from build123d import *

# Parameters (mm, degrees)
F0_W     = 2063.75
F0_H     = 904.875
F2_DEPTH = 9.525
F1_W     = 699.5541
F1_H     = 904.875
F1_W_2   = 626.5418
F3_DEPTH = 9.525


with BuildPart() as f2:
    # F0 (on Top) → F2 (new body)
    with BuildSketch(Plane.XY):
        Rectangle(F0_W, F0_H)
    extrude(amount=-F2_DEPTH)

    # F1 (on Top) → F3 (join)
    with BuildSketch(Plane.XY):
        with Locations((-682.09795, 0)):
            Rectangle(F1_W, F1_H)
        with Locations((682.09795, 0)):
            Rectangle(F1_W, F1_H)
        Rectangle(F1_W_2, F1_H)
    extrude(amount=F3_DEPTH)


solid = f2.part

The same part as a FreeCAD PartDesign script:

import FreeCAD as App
import Part
import Sketcher
Q = App.Units.Quantity

doc = App.newDocument("Part")
body = doc.addObject("PartDesign::Body", "Body")

# Sketch on XY plane
sketch1 = body.newObject("Sketcher::SketchObject", "Sketch")
sketch1.AttachmentSupport = (doc.getObject("XY_Plane"), [""])
sketch1.MapMode = "FlatFace"
sketch1.addGeometry([
    Part.LineSegment(App.Vector(-1032, 452, 0), App.Vector(-1032, -452, 0)),
    Part.LineSegment(App.Vector(-1032, -452, 0), App.Vector(1032, -452, 0)),
    Part.LineSegment(App.Vector(1032, -452, 0), App.Vector(1032, 452, 0)),
    Part.LineSegment(App.Vector(1032, 452, 0), App.Vector(-1032, 452, 0)),
], False)
sketch1.addConstraint([
    Sketcher.Constraint("Coincident", 0, 2, 1, 1),
    Sketcher.Constraint("Coincident", 1, 2, 2, 1),
    Sketcher.Constraint("Coincident", 2, 2, 3, 1),
    Sketcher.Constraint("Coincident", 3, 2, 0, 1),
    Sketcher.Constraint("Vertical", 0),
    Sketcher.Constraint("Horizontal", 1),
    Sketcher.Constraint("Vertical", 2),
    Sketcher.Constraint("Horizontal", 3),
    Sketcher.Constraint("Symmetric", 0, 2, 2, 2, -1, 1),
    Sketcher.Constraint("DistanceX", 1, 1, 1, 2, Q("81.25 in")),
    Sketcher.Constraint("DistanceY", 0, 2, 0, 1, Q("35.625 in")),
])
pad1 = body.newObject("PartDesign::Pad", "Pad")
pad1.Profile = sketch1
pad1.Length = Q("0.375 in")
pad1.Reversed = True

# Sketch on XY plane
sketch2 = body.newObject("Sketcher::SketchObject", "Sketch001")
sketch2.AttachmentSupport = (doc.getObject("XY_Plane"), [""])
sketch2.MapMode = "FlatFace"
sketch2.addGeometry([
    Part.LineSegment(App.Vector(-1032, 452, 0), App.Vector(-1032, -452, 0)),  # 0
    Part.LineSegment(App.Vector(-1032, -452, 0), App.Vector(-332, -452, 0)),  # 1
    Part.LineSegment(App.Vector(-332, -452, 0), App.Vector(-332, 452, 0)),  # 2
    Part.LineSegment(App.Vector(-332, 452, 0), App.Vector(-1032, 452, 0)),  # 3
    Part.LineSegment(App.Vector(332, 452, 0), App.Vector(332, -452, 0)),  # 4
    Part.LineSegment(App.Vector(332, -452, 0), App.Vector(1032, -452, 0)),  # 5
    Part.LineSegment(App.Vector(1032, -452, 0), App.Vector(1032, 452, 0)),  # 6
    Part.LineSegment(App.Vector(1032, 452, 0), App.Vector(332, 452, 0)),  # 7
    Part.LineSegment(App.Vector(-313, 452, 0), App.Vector(-313, -452, 0)),  # 8
    Part.LineSegment(App.Vector(-313, -452, 0), App.Vector(313, -452, 0)),  # 9
    Part.LineSegment(App.Vector(313, -452, 0), App.Vector(313, 452, 0)),  # 10
    Part.LineSegment(App.Vector(313, 452, 0), App.Vector(-313, 452, 0)),  # 11
], False)
sketch2.addConstraint([
    Sketcher.Constraint("Coincident", 0, 2, 1, 1),
    Sketcher.Constraint("Coincident", 1, 2, 2, 1),
    Sketcher.Constraint("Coincident", 2, 2, 3, 1),
    Sketcher.Constraint("Coincident", 3, 2, 0, 1),
    Sketcher.Constraint("Coincident", 4, 2, 5, 1),
    Sketcher.Constraint("Coincident", 5, 2, 6, 1),
    Sketcher.Constraint("Coincident", 6, 2, 7, 1),
    Sketcher.Constraint("Coincident", 7, 2, 4, 1),
    Sketcher.Constraint("Coincident", 8, 2, 9, 1),
    Sketcher.Constraint("Coincident", 9, 2, 10, 1),
    Sketcher.Constraint("Coincident", 10, 2, 11, 1),
    Sketcher.Constraint("Coincident", 11, 2, 8, 1),
    Sketcher.Constraint("Vertical", 0),
    Sketcher.Constraint("Horizontal", 1),
    Sketcher.Constraint("Vertical", 2),
    Sketcher.Constraint("Horizontal", 3),
    Sketcher.Constraint("Vertical", 4),
    Sketcher.Constraint("Horizontal", 5),
    Sketcher.Constraint("Vertical", 6),
    Sketcher.Constraint("Horizontal", 7),
    Sketcher.Constraint("Vertical", 8),
    Sketcher.Constraint("Horizontal", 9),
    Sketcher.Constraint("Vertical", 10),
    Sketcher.Constraint("Horizontal", 11),
    Sketcher.Constraint("Symmetric", 2, 2, 4, 2, -1, 1),
    Sketcher.Constraint("Symmetric", 0, 2, 6, 2, -1, 1),
    Sketcher.Constraint("Symmetric", 8, 2, 10, 2, -1, 1),
    Sketcher.Constraint("Horizontal", 1, 2, 4, 2),
    Sketcher.Constraint("Horizontal", 5, 2, 8, 2),
    Sketcher.Constraint("DistanceX", 9, 1, 9, 2, Q("24.667 in")),
    Sketcher.Constraint("DistanceY", 0, 2, 0, 1, Q("35.625 in")),
    Sketcher.Constraint("DistanceX", 0, 2, 5, 2, Q("81.25 in")),
    Sketcher.Constraint("DistanceX", 1, 2, 8, 2, Q("0.75 in")),
])
pad2 = body.newObject("PartDesign::Pad", "Pad001")
pad2.Profile = sketch2
pad2.Length = Q("0.375 in")

doc.recompute()
